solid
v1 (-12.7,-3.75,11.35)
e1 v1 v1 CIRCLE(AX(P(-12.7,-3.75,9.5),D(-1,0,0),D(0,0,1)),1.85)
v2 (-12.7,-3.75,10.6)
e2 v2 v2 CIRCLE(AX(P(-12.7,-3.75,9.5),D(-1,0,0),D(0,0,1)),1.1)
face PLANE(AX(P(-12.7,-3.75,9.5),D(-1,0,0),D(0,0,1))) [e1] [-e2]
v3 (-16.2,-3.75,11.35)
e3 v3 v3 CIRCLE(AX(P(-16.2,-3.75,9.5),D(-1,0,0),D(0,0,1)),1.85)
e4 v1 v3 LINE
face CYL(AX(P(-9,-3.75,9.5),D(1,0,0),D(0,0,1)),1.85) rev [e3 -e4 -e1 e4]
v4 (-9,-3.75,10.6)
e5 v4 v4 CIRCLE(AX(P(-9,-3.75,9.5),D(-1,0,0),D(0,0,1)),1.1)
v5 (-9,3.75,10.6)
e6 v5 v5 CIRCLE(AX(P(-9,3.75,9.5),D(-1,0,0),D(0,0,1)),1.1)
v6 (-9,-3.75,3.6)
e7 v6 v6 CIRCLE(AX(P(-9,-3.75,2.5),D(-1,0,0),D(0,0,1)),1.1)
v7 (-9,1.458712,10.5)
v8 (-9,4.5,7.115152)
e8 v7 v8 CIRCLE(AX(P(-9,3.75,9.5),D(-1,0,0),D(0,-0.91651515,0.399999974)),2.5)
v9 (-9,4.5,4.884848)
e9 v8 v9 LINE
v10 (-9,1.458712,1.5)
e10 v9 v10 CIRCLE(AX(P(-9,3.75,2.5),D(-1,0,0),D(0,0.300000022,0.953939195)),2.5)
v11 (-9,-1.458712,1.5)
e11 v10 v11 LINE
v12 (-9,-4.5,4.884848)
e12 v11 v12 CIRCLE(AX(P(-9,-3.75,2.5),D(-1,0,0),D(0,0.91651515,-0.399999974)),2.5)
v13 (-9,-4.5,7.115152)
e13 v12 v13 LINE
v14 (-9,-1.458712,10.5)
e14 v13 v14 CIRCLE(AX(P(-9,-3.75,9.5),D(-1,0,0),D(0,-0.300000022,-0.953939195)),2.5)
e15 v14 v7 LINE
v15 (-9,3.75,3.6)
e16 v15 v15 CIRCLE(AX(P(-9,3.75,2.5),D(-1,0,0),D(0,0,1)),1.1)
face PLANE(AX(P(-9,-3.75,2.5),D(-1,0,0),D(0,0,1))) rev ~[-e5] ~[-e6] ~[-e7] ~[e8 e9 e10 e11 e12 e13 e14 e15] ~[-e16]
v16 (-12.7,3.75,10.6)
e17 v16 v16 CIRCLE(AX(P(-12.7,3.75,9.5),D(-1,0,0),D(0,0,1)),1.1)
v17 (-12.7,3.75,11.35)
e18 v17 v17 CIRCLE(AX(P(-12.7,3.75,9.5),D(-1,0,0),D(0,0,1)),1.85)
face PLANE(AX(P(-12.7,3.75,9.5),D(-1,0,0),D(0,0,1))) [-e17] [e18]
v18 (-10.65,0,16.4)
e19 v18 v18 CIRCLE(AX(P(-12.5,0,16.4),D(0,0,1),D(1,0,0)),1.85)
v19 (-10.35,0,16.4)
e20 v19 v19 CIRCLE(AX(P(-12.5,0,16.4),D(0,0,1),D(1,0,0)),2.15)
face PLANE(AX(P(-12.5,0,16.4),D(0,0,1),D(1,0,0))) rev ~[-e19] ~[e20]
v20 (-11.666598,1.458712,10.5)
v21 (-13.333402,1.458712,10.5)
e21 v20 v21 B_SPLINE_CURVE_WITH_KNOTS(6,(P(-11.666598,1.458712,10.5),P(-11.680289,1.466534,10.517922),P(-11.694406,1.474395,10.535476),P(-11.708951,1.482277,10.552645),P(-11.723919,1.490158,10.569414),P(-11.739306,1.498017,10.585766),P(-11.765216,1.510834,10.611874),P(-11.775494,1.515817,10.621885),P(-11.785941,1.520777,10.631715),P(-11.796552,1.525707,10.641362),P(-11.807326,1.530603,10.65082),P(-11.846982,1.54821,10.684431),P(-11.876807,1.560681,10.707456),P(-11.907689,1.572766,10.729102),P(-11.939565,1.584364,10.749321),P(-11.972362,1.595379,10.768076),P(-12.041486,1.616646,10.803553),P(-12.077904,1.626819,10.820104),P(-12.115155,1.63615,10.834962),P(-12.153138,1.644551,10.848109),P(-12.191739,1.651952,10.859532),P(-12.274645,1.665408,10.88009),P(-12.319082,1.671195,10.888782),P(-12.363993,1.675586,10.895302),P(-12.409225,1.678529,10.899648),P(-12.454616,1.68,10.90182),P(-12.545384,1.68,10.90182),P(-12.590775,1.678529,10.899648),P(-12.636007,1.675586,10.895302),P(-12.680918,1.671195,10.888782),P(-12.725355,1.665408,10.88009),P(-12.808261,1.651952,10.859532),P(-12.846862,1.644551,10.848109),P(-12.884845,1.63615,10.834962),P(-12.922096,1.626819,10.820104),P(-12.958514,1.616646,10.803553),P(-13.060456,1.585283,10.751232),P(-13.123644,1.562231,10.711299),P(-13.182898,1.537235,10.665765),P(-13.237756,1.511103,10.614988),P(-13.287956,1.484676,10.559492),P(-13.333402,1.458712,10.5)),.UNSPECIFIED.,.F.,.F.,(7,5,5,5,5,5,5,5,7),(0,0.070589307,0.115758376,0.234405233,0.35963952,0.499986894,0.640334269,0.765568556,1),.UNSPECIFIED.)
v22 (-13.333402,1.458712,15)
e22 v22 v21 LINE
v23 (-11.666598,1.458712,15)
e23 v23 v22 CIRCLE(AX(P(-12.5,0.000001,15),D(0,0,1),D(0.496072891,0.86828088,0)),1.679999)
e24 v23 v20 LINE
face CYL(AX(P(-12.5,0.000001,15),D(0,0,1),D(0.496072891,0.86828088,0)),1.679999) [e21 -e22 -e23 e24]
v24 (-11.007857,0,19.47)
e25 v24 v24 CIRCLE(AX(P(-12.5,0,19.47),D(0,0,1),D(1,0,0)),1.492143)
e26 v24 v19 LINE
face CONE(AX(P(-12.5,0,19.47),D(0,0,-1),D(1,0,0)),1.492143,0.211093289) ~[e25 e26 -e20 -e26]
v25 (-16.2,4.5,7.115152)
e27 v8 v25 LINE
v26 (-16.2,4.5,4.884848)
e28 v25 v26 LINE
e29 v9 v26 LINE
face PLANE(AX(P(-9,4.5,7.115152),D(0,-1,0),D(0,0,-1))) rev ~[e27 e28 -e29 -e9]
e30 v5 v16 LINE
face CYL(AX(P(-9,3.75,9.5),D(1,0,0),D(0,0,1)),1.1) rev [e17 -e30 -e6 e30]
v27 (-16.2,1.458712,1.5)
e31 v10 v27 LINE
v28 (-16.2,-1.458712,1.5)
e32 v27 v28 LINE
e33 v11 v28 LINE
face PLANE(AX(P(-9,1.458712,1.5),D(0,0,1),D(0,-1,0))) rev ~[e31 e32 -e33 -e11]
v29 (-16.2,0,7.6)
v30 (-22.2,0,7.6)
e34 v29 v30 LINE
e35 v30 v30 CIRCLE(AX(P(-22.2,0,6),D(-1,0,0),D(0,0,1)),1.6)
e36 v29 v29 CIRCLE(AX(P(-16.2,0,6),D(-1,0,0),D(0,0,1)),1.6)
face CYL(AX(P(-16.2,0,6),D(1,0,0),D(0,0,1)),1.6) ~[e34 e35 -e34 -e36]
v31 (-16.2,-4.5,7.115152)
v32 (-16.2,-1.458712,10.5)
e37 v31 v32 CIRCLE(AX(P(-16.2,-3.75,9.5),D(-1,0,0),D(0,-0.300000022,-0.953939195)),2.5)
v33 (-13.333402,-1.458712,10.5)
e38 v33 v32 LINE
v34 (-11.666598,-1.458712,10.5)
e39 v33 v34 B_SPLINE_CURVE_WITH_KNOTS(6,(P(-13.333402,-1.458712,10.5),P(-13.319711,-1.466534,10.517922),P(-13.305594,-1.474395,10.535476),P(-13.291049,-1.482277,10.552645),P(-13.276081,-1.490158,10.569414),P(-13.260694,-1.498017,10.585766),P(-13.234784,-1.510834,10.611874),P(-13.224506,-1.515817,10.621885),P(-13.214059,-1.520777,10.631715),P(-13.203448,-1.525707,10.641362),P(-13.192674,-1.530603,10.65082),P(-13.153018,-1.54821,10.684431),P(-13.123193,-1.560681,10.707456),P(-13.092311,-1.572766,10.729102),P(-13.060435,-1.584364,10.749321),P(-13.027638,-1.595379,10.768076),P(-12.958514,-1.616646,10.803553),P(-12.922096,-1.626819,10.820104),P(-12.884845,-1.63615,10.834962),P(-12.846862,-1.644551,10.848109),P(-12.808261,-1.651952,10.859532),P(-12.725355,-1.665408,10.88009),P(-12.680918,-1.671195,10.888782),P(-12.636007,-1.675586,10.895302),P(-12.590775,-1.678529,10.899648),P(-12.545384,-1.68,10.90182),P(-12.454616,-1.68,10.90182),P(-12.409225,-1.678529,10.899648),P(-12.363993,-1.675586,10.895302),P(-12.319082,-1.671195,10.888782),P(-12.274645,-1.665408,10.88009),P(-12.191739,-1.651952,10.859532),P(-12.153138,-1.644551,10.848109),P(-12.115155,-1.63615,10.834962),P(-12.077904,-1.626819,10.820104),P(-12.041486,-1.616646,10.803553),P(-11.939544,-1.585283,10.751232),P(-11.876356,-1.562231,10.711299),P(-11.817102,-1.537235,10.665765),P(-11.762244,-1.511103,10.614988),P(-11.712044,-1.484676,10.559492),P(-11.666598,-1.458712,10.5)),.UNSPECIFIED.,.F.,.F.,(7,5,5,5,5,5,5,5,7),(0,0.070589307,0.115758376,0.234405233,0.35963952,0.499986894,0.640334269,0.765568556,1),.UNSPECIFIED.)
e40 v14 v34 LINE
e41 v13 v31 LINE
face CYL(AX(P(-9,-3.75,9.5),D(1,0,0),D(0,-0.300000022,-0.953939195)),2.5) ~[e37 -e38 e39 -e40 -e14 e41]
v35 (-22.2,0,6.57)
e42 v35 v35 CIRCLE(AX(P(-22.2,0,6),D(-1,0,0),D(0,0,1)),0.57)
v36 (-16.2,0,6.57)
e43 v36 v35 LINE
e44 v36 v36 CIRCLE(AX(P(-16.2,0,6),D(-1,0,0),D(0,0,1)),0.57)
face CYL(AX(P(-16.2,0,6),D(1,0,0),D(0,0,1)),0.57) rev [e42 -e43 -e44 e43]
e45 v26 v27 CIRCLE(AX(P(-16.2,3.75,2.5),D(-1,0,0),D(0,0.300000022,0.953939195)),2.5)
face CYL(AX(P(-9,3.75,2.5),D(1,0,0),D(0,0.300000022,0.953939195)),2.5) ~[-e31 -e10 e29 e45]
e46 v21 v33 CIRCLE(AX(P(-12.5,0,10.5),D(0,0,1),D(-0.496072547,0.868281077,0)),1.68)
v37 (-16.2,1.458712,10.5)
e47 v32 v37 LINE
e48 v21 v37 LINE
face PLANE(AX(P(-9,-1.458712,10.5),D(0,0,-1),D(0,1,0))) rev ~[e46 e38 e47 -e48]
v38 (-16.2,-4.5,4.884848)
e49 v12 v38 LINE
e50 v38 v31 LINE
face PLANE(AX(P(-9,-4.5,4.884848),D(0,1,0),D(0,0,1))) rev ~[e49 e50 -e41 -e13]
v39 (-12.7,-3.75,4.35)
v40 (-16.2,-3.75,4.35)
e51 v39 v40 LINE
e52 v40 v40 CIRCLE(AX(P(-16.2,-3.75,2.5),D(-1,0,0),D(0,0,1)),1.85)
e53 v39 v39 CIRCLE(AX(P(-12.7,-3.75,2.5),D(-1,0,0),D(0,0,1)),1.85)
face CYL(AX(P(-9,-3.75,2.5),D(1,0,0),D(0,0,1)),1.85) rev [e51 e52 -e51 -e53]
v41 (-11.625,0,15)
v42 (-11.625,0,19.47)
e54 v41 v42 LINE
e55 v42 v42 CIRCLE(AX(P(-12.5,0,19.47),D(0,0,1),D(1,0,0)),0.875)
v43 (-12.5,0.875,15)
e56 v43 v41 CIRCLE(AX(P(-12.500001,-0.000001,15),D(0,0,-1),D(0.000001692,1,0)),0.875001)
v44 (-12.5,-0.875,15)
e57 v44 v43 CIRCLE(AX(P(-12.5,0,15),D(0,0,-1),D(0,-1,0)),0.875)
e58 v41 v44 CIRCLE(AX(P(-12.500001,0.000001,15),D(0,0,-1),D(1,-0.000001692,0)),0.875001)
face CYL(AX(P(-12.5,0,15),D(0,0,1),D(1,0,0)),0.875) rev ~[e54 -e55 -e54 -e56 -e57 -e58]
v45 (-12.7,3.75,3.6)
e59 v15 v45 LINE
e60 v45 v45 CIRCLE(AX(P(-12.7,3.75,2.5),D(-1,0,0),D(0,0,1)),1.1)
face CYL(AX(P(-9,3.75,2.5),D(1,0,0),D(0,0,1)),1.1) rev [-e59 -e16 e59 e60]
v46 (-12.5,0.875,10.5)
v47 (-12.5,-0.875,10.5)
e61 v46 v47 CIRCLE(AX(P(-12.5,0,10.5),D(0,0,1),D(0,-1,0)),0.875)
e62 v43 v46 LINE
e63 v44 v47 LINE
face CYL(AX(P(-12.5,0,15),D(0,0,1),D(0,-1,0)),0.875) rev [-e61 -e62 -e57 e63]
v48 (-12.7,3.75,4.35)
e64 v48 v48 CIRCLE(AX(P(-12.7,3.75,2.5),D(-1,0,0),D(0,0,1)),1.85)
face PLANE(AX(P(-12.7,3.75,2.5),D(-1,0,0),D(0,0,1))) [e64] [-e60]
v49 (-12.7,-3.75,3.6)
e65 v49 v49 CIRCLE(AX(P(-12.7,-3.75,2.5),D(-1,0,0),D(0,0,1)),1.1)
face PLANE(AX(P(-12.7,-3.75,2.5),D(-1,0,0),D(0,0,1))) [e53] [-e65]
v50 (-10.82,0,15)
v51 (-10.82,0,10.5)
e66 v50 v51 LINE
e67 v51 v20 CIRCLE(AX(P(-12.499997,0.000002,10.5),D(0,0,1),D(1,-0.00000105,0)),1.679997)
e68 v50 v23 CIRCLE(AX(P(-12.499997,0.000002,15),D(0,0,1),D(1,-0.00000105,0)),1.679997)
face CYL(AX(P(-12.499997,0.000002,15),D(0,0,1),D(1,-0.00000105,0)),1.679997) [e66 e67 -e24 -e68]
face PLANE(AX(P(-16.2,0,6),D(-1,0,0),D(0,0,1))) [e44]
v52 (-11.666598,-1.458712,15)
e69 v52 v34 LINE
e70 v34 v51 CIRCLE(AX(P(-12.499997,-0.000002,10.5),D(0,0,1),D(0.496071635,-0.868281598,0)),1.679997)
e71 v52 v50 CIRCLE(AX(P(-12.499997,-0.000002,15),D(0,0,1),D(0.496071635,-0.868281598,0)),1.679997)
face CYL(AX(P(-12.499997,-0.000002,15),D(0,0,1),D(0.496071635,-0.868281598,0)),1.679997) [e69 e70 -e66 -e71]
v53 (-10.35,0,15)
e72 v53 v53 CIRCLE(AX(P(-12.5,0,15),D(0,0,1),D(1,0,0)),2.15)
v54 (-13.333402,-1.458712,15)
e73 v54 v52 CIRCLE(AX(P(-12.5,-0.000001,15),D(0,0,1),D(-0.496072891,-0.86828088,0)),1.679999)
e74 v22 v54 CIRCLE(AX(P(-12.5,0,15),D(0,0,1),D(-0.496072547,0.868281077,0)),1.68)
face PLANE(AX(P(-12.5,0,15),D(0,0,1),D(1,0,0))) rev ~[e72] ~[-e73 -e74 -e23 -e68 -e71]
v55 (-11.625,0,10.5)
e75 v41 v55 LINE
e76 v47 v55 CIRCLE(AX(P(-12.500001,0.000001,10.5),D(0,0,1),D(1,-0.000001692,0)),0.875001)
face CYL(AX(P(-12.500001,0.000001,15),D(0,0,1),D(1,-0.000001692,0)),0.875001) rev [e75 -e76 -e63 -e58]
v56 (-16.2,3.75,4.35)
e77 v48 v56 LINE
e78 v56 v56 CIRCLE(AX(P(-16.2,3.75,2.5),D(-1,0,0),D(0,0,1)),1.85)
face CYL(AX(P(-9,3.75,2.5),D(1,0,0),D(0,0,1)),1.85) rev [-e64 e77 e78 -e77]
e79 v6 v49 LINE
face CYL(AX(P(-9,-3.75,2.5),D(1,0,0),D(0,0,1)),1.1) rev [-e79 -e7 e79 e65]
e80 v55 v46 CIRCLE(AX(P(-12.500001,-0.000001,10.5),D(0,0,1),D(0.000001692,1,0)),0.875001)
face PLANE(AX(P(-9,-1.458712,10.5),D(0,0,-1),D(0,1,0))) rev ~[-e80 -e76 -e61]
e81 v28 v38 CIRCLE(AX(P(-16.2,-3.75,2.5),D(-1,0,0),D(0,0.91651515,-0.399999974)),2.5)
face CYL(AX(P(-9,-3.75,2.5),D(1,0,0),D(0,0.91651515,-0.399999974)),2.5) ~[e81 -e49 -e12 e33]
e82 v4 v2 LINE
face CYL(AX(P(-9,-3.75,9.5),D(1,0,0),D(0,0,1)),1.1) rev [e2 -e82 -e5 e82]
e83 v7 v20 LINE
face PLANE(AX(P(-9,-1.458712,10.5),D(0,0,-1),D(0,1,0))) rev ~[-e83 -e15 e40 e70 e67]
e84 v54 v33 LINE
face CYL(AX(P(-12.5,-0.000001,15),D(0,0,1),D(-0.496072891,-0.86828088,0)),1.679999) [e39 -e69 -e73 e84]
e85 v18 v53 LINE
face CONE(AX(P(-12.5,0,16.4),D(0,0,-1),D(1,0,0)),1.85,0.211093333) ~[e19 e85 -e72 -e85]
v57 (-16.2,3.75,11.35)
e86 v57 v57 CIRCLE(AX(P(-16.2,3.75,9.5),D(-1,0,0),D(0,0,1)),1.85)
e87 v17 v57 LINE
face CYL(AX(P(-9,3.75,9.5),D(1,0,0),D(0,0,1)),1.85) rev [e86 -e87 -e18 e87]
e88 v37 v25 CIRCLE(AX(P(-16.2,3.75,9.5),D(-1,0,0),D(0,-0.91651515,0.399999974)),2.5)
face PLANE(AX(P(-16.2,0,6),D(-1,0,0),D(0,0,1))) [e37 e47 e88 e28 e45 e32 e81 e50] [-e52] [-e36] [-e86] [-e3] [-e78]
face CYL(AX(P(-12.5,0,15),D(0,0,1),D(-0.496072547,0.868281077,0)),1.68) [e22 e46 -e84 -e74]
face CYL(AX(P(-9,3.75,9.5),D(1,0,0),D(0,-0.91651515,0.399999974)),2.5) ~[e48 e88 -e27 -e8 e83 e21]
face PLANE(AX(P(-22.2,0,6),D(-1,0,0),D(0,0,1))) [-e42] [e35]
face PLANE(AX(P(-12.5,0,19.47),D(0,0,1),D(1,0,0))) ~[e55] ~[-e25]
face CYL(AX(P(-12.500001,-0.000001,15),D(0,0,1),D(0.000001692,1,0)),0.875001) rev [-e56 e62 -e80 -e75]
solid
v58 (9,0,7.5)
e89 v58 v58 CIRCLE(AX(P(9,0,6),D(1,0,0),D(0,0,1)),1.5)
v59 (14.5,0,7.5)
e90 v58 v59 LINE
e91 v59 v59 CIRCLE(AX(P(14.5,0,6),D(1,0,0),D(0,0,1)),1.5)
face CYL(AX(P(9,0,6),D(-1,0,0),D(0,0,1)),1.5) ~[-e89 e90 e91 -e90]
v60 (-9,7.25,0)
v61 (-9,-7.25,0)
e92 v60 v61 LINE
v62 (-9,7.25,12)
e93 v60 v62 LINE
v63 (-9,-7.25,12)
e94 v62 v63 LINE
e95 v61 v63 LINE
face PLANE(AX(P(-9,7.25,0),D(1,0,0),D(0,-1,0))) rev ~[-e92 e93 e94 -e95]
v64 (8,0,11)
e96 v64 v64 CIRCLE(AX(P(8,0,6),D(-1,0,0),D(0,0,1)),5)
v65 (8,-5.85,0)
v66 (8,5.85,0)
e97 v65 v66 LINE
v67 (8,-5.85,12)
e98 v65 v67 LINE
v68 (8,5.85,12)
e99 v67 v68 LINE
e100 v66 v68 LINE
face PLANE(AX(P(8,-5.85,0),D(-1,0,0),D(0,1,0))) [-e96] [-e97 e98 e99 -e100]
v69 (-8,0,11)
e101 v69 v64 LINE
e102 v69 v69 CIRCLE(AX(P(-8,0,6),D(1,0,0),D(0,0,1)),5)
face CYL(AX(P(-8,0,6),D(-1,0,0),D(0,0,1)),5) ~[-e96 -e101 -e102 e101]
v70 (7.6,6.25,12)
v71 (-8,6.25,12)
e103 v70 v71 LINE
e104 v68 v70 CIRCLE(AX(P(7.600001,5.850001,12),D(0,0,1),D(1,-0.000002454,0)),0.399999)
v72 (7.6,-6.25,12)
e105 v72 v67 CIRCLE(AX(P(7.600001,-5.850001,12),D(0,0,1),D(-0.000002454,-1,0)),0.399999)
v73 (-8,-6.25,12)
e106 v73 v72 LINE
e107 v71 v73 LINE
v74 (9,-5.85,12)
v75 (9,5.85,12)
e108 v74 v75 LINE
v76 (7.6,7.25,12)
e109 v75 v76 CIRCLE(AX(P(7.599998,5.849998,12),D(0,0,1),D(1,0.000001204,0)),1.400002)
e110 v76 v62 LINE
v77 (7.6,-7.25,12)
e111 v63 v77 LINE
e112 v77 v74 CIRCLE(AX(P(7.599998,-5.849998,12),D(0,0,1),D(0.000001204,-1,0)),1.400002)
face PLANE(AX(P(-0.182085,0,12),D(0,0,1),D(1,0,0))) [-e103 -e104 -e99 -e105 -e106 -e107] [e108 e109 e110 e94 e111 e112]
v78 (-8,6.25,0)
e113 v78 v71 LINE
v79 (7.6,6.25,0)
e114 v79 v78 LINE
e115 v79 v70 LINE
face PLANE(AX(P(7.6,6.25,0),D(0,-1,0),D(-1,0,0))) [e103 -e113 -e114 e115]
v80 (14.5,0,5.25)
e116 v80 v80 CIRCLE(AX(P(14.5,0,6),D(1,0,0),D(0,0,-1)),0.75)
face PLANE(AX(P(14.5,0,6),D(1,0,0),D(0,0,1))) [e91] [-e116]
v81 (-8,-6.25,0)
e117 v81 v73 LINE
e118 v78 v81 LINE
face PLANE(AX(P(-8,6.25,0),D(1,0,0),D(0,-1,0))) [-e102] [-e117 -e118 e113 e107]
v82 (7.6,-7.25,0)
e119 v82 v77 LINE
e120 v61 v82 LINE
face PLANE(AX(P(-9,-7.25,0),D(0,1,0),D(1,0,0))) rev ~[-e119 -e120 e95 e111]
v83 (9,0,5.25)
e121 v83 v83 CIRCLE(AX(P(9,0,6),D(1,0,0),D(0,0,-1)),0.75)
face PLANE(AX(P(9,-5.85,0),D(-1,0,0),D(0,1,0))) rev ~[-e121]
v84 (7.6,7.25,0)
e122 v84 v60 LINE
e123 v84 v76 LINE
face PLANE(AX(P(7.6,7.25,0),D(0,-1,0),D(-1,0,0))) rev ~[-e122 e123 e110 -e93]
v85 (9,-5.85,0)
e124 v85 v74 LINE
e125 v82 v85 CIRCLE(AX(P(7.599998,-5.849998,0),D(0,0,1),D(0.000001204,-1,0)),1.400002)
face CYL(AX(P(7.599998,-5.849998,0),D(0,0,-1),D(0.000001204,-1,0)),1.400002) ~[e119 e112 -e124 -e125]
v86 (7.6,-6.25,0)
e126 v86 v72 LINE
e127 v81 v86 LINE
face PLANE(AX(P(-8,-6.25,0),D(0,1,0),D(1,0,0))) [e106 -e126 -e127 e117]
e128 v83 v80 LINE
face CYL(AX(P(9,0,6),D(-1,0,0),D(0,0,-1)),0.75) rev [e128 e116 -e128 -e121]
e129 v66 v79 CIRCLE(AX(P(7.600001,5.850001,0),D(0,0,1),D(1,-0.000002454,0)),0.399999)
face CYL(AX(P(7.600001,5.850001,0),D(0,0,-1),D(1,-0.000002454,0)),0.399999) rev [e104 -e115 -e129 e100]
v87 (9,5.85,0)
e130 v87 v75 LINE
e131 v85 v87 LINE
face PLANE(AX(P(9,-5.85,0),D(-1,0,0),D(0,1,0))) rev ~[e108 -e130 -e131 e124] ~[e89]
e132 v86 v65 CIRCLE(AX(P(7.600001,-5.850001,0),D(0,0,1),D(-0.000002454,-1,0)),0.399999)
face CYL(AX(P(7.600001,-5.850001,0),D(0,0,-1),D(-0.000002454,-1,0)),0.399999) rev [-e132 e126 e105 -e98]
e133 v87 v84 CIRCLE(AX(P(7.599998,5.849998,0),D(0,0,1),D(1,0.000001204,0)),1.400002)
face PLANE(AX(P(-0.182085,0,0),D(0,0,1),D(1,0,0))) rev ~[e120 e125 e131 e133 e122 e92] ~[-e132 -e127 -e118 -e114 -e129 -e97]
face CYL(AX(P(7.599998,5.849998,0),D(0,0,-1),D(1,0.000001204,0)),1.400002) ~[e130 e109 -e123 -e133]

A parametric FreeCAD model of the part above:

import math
import FreeCAD as App
import Part
import Sketcher
from FreeCAD import Vector


def add_polygon(sketch, points):
    """Adds a closed chain of lines whose ends are joined by coincident constraints."""
    first, n = sketch.GeometryCount, len(points)
    for a, b in zip(points, points[1:] + points[:1]):
        sketch.addGeometry(Part.LineSegment(App.Vector(*a, 0), App.Vector(*b, 0)), False)
    for i in range(n):
        sketch.addConstraint(Sketcher.Constraint("Coincident", first + i, 2, first + (i + 1) % n, 1))

doc = App.newDocument("Part")
body = doc.addObject("PartDesign::Body", "Body")

# Sketch on XY plane
sketch1 = body.newObject("Sketcher::SketchObject", "Sketch")
sketch1.AttachmentSupport = (doc.getObject("XY_Plane"), [""])
sketch1.MapMode = "FlatFace"
sketch1.addGeometry(Part.LineSegment(Vector(9, -5.85, 0), Vector(9, 5.85, 0)), False)
sketch1.addGeometry(Part.ArcOfCircle(Part.Circle(Vector(7.599998, 5.849998, 0), Vector(0, 0, 1), 1.400002), math.radians(0.000069), math.radians(89.999931)), False)
sketch1.addGeometry(Part.LineSegment(Vector(7.6, 7.25, 0), Vector(-9, 7.25, 0)), False)
sketch1.addGeometry(Part.LineSegment(Vector(-9, 7.25, 0), Vector(-9, -7.25, 0)), False)
sketch1.addGeometry(Part.LineSegment(Vector(-9, -7.25, 0), Vector(7.6, -7.25, 0)), False)
sketch1.addGeometry(Part.ArcOfCircle(Part.Circle(Vector(7.599998, -5.849998, 0), Vector(0, 0, 1), 1.400002), math.radians(-89.999931), math.radians(-0.000069)), False)
sketch1.addGeometry(Part.LineSegment(Vector(7.6, -6.25, 0), Vector(-8, -6.25, 0)), False)
sketch1.addGeometry(Part.LineSegment(Vector(-8, -6.25, 0), Vector(-8, 6.25, 0)), False)
sketch1.addGeometry(Part.LineSegment(Vector(-8, 6.25, 0), Vector(7.6, 6.25, 0)), False)
sketch1.addGeometry(Part.ArcOfCircle(Part.Circle(Vector(7.600001, 5.850001, 0), Vector(0, 0, 1), 0.399999), math.radians(-0.000141), math.radians(90.000141)), False)
sketch1.addGeometry(Part.LineSegment(Vector(8, 5.85, 0), Vector(8, -5.85, 0)), False)
sketch1.addGeometry(Part.ArcOfCircle(Part.Circle(Vector(7.600001, -5.850001, 0), Vector(0, 0, 1), 0.399999), math.radians(-90.000141), math.radians(0.000141)), False)
sketch1.addConstraint(Sketcher.Constraint("Tangent", 0, 2, 1, 1))
sketch1.addConstraint(Sketcher.Constraint("Tangent", 1, 2, 2, 1))
sketch1.addConstraint(Sketcher.Constraint("Coincident", 2, 2, 3, 1))
sketch1.addConstraint(Sketcher.Constraint("Coincident", 3, 2, 4, 1))
sketch1.addConstraint(Sketcher.Constraint("Tangent", 4, 2, 5, 1))
sketch1.addConstraint(Sketcher.Constraint("Tangent", 5, 2, 0, 1))
sketch1.addConstraint(Sketcher.Constraint("Coincident", 6, 2, 7, 1))
sketch1.addConstraint(Sketcher.Constraint("Coincident", 7, 2, 8, 1))
sketch1.addConstraint(Sketcher.Constraint("Coincident", 8, 2, 9, 2))
sketch1.addConstraint(Sketcher.Constraint("Coincident", 9, 1, 10, 1))
sketch1.addConstraint(Sketcher.Constraint("Coincident", 10, 2, 11, 2))
sketch1.addConstraint(Sketcher.Constraint("Coincident", 11, 1, 6, 1))
sketch1.addConstraint(Sketcher.Constraint("Vertical", 0))
sketch1.addConstraint(Sketcher.Constraint("Horizontal", 2))
sketch1.addConstraint(Sketcher.Constraint("Vertical", 3))
sketch1.addConstraint(Sketcher.Constraint("Horizontal", 4))
sketch1.addConstraint(Sketcher.Constraint("Horizontal", 6))
sketch1.addConstraint(Sketcher.Constraint("Vertical", 7))
sketch1.addConstraint(Sketcher.Constraint("Horizontal", 8))
sketch1.addConstraint(Sketcher.Constraint("Vertical", 10))
sketch1.addConstraint(Sketcher.Constraint("Coincident", 9, 3, 1, 3))
sketch1.addConstraint(Sketcher.Constraint("Coincident", 11, 3, 5, 3))
sketch1.addConstraint(Sketcher.Constraint("Equal", 1, 5))
sketch1.addConstraint(Sketcher.Constraint("Symmetric", 8, 2, 11, 1, -1))
sketch1.addConstraint(Sketcher.Constraint("Horizontal", 0, 2, 9, 1))
sketch1.addConstraint(Sketcher.Constraint("Horizontal", 5, 2, 10, 2))
sketch1.addConstraint(Sketcher.Constraint("Vertical", 4, 2, 8, 2))
sketch1.addConstraint(Sketcher.Constraint("Radius", 1, 1.400002))
sketch1.addConstraint(Sketcher.Constraint("Radius", 9, 0.399999))
sketch1.addConstraint(Sketcher.Constraint("DistanceX", 2, 2, 2, 1, 16.6))
sketch1.addConstraint(Sketcher.Constraint("DistanceX", 6, 2, 6, 1, 15.6))
sketch1.addConstraint(Sketcher.Constraint("DistanceY", 0, 1, 0, 2, 11.7))
sketch1.addConstraint(Sketcher.Constraint("DistanceX", -1, 1, 0, 2, 9.0))
pad1 = body.newObject("PartDesign::Pad", "Pad")
pad1.Profile = sketch1
pad1.Length = 12

# Sketch on YZ plane
sketch2 = body.newObject("Sketcher::SketchObject", "Sketch001")
sketch2.AttachmentSupport = (doc.getObject("YZ_Plane"), [""])
sketch2.MapMode = "FlatFace"
sketch2.AttachmentOffset = App.Placement(Vector(0, 0, 9), App.Rotation())
sketch2.addGeometry(Part.Circle(Vector(0, 6, 0), Vector(0, 0, 1), 1.5), False)
sketch2.addGeometry(Part.Circle(Vector(0, 6, 0), Vector(0, 0, 1), 0.75), False)
sketch2.addConstraint(Sketcher.Constraint("Coincident", 1, 3, 0, 3))
sketch2.addConstraint(Sketcher.Constraint("PointOnObject", 0, 3, -2))
sketch2.addConstraint(Sketcher.Constraint("Diameter", 0, 3.0))
sketch2.addConstraint(Sketcher.Constraint("Diameter", 1, 1.5))
sketch2.addConstraint(Sketcher.Constraint("DistanceY", -1, 1, 0, 3, 6.0))
pad2 = body.newObject("PartDesign::Pad", "Pad001")
pad2.Profile = sketch2
pad2.Length = 5.5

# Sketch on YZ plane
sketch3 = body.newObject("Sketcher::SketchObject", "Sketch002")
sketch3.AttachmentSupport = (doc.getObject("YZ_Plane"), [""])
sketch3.MapMode = "FlatFace"
sketch3.AttachmentOffset = App.Placement(Vector(0, 0, -8), App.Rotation())
sketch3.addGeometry(Part.Circle(Vector(0, 6, 0), Vector(0, 0, 1), 5), False)
sketch3.addConstraint(Sketcher.Constraint("PointOnObject", 0, 3, -2))
sketch3.addConstraint(Sketcher.Constraint("Diameter", 0, 10.0))
sketch3.addConstraint(Sketcher.Constraint("DistanceY", -1, 1, 0, 3, 6.0))
pad3 = body.newObject("PartDesign::Pad", "Pad002")
pad3.Profile = sketch3
pad3.Type = "UpToFirst"
body2 = doc.addObject("PartDesign::Body", "Body001")

# Sketch on YZ plane
sketch4 = body2.newObject("Sketcher::SketchObject", "Sketch003")
sketch4.AttachmentSupport = (doc.getObject("YZ_Plane001"), [""])
sketch4.MapMode = "FlatFace"
sketch4.AttachmentOffset = App.Placement(Vector(0, 0, -9), App.Rotation())
sketch4.addGeometry(Part.ArcOfCircle(Part.Circle(Vector(-3.75, 2.5, 0), Vector(0, 0, 1), 2.5), math.radians(107.457604), math.radians(336.421823)), False)
sketch4.addGeometry(Part.LineSegment(Vector(-4.5, 4.884848, 0), Vector(-4.5, 7.115152, 0)), False)
sketch4.addGeometry(Part.ArcOfCircle(Part.Circle(Vector(-3.75, 9.5, 0), Vector(0, 0, 1), 2.5), math.radians(23.578177), math.radians(252.542396)), False)
sketch4.addGeometry(Part.LineSegment(Vector(-1.458712, 10.5, 0), Vector(1.458712, 10.5, 0)), False)
sketch4.addGeometry(Part.ArcOfCircle(Part.Circle(Vector(3.75, 9.5, 0), Vector(0, 0, 1), 2.5), math.radians(-72.542396), math.radians(156.421823)), False)
sketch4.addGeometry(Part.LineSegment(Vector(4.5, 7.115152, 0), Vector(4.5, 4.884848, 0)), False)
sketch4.addGeometry(Part.ArcOfCircle(Part.Circle(Vector(3.75, 2.5, 0), Vector(0, 0, 1), 2.5), math.radians(-156.421823), math.radians(72.542396)), False)
sketch4.addGeometry(Part.LineSegment(Vector(1.458712, 1.5, 0), Vector(-1.458712, 1.5, 0)), False)
sketch4.addGeometry(Part.Circle(Vector(-3.75, 2.5, 0), Vector(0, 0, 1), 1.85), False)
sketch4.addGeometry(Part.Circle(Vector(-3.75, 9.5, 0), Vector(0, 0, 1), 1.85), False)
sketch4.addGeometry(Part.Circle(Vector(3.75, 2.5, 0), Vector(0, 0, 1), 1.85), False)
sketch4.addGeometry(Part.Circle(Vector(3.75, 9.5, 0), Vector(0, 0, 1), 1.85), False)
sketch4.addConstraint(Sketcher.Constraint("Coincident", 0, 1, 1, 1))
sketch4.addConstraint(Sketcher.Constraint("Coincident", 1, 2, 2, 2))
sketch4.addConstraint(Sketcher.Constraint("Coincident", 2, 1, 3, 1))
sketch4.addConstraint(Sketcher.Constraint("Coincident", 3, 2, 4, 2))
sketch4.addConstraint(Sketcher.Constraint("Coincident", 4, 1, 5, 1))
sketch4.addConstraint(Sketcher.Constraint("Coincident", 5, 2, 6, 2))
sketch4.addConstraint(Sketcher.Constraint("Coincident", 6, 1, 7, 1))
sketch4.addConstraint(Sketcher.Constraint("Coincident", 7, 2, 0, 2))
sketch4.addConstraint(Sketcher.Constraint("Vertical", 1))
sketch4.addConstraint(Sketcher.Constraint("Horizontal", 3))
sketch4.addConstraint(Sketcher.Constraint("Vertical", 5))
sketch4.addConstraint(Sketcher.Constraint("Horizontal", 7))
sketch4.addConstraint(Sketcher.Constraint("Coincident", 8, 3, 0, 3))
sketch4.addConstraint(Sketcher.Constraint("Coincident", 9, 3, 2, 3))
sketch4.addConstraint(Sketcher.Constraint("Coincident", 10, 3, 6, 3))
sketch4.addConstraint(Sketcher.Constraint("Coincident", 11, 3, 4, 3))
sketch4.addConstraint(Sketcher.Constraint("Equal", 0, 2))
sketch4.addConstraint(Sketcher.Constraint("Equal", 2, 4))
sketch4.addConstraint(Sketcher.Constraint("Equal", 4, 6))
sketch4.addConstraint(Sketcher.Constraint("Equal", 8, 9))
sketch4.addConstraint(Sketcher.Constraint("Equal", 9, 10))
sketch4.addConstraint(Sketcher.Constraint("Equal", 10, 11))
sketch4.addConstraint(Sketcher.Constraint("Symmetric", 2, 3, 4, 3, -2))
sketch4.addConstraint(Sketcher.Constraint("Symmetric", 0, 3, 6, 3, -2))
sketch4.addConstraint(Sketcher.Constraint("Horizontal", 1, 2, 4, 1))
sketch4.addConstraint(Sketcher.Constraint("Vertical", 0, 3, 2, 3))
sketch4.addConstraint(Sketcher.Constraint("Vertical", 3, 2, 6, 1))
sketch4.addConstraint(Sketcher.Constraint("Diameter", 8, 3.7))
sketch4.addConstraint(Sketcher.Constraint("Radius", 0, 2.5))
sketch4.addConstraint(Sketcher.Constraint("DistanceY", 0, 3, 2, 3, 7.0))
sketch4.addConstraint(Sketcher.Constraint("DistanceY", 2, 3, 2, 1, 1.0))
sketch4.addConstraint(Sketcher.Constraint("DistanceY", -1, 1, 0, 3, 2.5))
sketch4.addConstraint(Sketcher.Constraint("DistanceX", 0, 1, -1, 1, 4.5))
sketch4.addConstraint(Sketcher.Constraint("DistanceX", 2, 3, 4, 3, 7.5))
pad4 = body2.newObject("PartDesign::Pad", "Pad003")
pad4.Profile = sketch4
pad4.Length = 7.2
pad4.Reversed = True
body3 = doc.addObject("PartDesign::Body", "Body002")

# Sketch on YZ plane
sketch5 = body3.newObject("Sketcher::SketchObject", "Sketch004")
sketch5.AttachmentSupport = (doc.getObject("YZ_Plane002"), [""])
sketch5.MapMode = "FlatFace"
sketch5.AttachmentOffset = App.Placement(Vector(0, 0, -9), App.Rotation())
sketch5.addGeometry(Part.Circle(Vector(3.75, 2.5, 0), Vector(0, 0, 1), 1.85), False)
sketch5.addGeometry(Part.Circle(Vector(3.75, 2.5, 0), Vector(0, 0, 1), 1.1), False)
sketch5.addConstraint(Sketcher.Constraint("Coincident", 1, 3, 0, 3))
sketch5.addConstraint(Sketcher.Constraint("Diameter", 0, 3.7))
sketch5.addConstraint(Sketcher.Constraint("Diameter", 1, 2.2))
sketch5.addConstraint(Sketcher.Constraint("DistanceY", -1, 1, 0, 3, 2.5))
sketch5.addConstraint(Sketcher.Constraint("DistanceX", -1, 1, 0, 3, 3.75))
pad5 = body3.newObject("PartDesign::Pad", "Pad004")
pad5.Profile = sketch5
pad5.Length = 3.7
pad5.Reversed = True
body4 = doc.addObject("PartDesign::Body", "Body003")

# Sketch on YZ plane
sketch6 = body4.newObject("Sketcher::SketchObject", "Sketch005")
sketch6.AttachmentSupport = (doc.getObject("YZ_Plane003"), [""])
sketch6.MapMode = "FlatFace"
sketch6.AttachmentOffset = App.Placement(Vector(0, 0, -9), App.Rotation())
sketch6.addGeometry(Part.Circle(Vector(3.75, 9.5, 0), Vector(0, 0, 1), 1.85), False)
sketch6.addGeometry(Part.Circle(Vector(3.75, 9.5, 0), Vector(0, 0, 1), 1.1), False)
sketch6.addConstraint(Sketcher.Constraint("Coincident", 1, 3, 0, 3))
sketch6.addConstraint(Sketcher.Constraint("Diameter", 0, 3.7))
sketch6.addConstraint(Sketcher.Constraint("Diameter", 1, 2.2))
sketch6.addConstraint(Sketcher.Constraint("DistanceY", -1, 1, 0, 3, 9.5))
sketch6.addConstraint(Sketcher.Constraint("DistanceX", -1, 1, 0, 3, 3.75))
pad6 = body4.newObject("PartDesign::Pad", "Pad005")
pad6.Profile = sketch6
pad6.Length = 3.7
pad6.Reversed = True
body5 = doc.addObject("PartDesign::Body", "Body004")

# Sketch on YZ plane
sketch7 = body5.newObject("Sketcher::SketchObject", "Sketch006")
sketch7.AttachmentSupport = (doc.getObject("YZ_Plane004"), [""])
sketch7.MapMode = "FlatFace"
sketch7.AttachmentOffset = App.Placement(Vector(0, 0, -9), App.Rotation())
sketch7.addGeometry(Part.Circle(Vector(-3.75, 9.5, 0), Vector(0, 0, 1), 1.85), False)
sketch7.addGeometry(Part.Circle(Vector(-3.75, 9.5, 0), Vector(0, 0, 1), 1.1), False)
sketch7.addConstraint(Sketcher.Constraint("Coincident", 1, 3, 0, 3))
sketch7.addConstraint(Sketcher.Constraint("Diameter", 0, 3.7))
sketch7.addConstraint(Sketcher.Constraint("Diameter", 1, 2.2))
sketch7.addConstraint(Sketcher.Constraint("DistanceY", -1, 1, 0, 3, 9.5))
sketch7.addConstraint(Sketcher.Constraint("DistanceX", 0, 3, -1, 1, 3.75))
pad7 = body5.newObject("PartDesign::Pad", "Pad006")
pad7.Profile = sketch7
pad7.Length = 3.7
pad7.Reversed = True
body6 = doc.addObject("PartDesign::Body", "Body005")

# Sketch on YZ plane
sketch8 = body6.newObject("Sketcher::SketchObject", "Sketch007")
sketch8.AttachmentSupport = (doc.getObject("YZ_Plane005"), [""])
sketch8.MapMode = "FlatFace"
sketch8.AttachmentOffset = App.Placement(Vector(0, 0, -9), App.Rotation())
sketch8.addGeometry(Part.Circle(Vector(-3.75, 2.5, 0), Vector(0, 0, 1), 1.85), False)
sketch8.addGeometry(Part.Circle(Vector(-3.75, 2.5, 0), Vector(0, 0, 1), 1.1), False)
sketch8.addConstraint(Sketcher.Constraint("Coincident", 1, 3, 0, 3))
sketch8.addConstraint(Sketcher.Constraint("Diameter", 0, 3.7))
sketch8.addConstraint(Sketcher.Constraint("Diameter", 1, 2.2))
sketch8.addConstraint(Sketcher.Constraint("DistanceY", -1, 1, 0, 3, 2.5))
sketch8.addConstraint(Sketcher.Constraint("DistanceX", 0, 3, -1, 1, 3.75))
pad8 = body6.newObject("PartDesign::Pad", "Pad007")
pad8.Profile = sketch8
pad8.Length = 3.7
pad8.Reversed = True
doc.recompute()

boolean = body2.newObject("PartDesign::Boolean", "Boolean")
boolean.Type = "Fuse"
boolean.addObjects([body3])
doc.recompute()

boolean2 = body2.newObject("PartDesign::Boolean", "Boolean001")
boolean2.Type = "Fuse"
boolean2.addObjects([body4])
doc.recompute()

boolean3 = body2.newObject("PartDesign::Boolean", "Boolean002")
boolean3.Type = "Fuse"
boolean3.addObjects([body5])
doc.recompute()

boolean4 = body2.newObject("PartDesign::Boolean", "Boolean003")
boolean4.Type = "Fuse"
boolean4.addObjects([body6])

# Sketch on YZ plane
sketch9 = body2.newObject("Sketcher::SketchObject", "Sketch008")
sketch9.AttachmentSupport = (doc.getObject("YZ_Plane001"), [""])
sketch9.MapMode = "FlatFace"
sketch9.AttachmentOffset = App.Placement(Vector(0, 0, -16.2), App.Rotation())
sketch9.addGeometry(Part.Circle(Vector(0, 6, 0), Vector(0, 0, 1), 1.6), False)
sketch9.addGeometry(Part.Circle(Vector(0, 6, 0), Vector(0, 0, 1), 0.57), False)
sketch9.addConstraint(Sketcher.Constraint("Coincident", 1, 3, 0, 3))
sketch9.addConstraint(Sketcher.Constraint("PointOnObject", 0, 3, -2))
sketch9.addConstraint(Sketcher.Constraint("Diameter", 0, 3.2))
sketch9.addConstraint(Sketcher.Constraint("Diameter", 1, 1.14))
sketch9.addConstraint(Sketcher.Constraint("DistanceY", -1, 1, 0, 3, 6.0))
pad9 = body2.newObject("PartDesign::Pad", "Pad008")
pad9.Profile = sketch9
pad9.Length = 6
pad9.Reversed = True

# Sketch on XY plane
sketch10 = body2.newObject("Sketcher::SketchObject", "Sketch009")
sketch10.AttachmentSupport = (doc.getObject("XY_Plane001"), [""])
sketch10.MapMode = "FlatFace"
sketch10.AttachmentOffset = App.Placement(Vector(0, 0, 15), App.Rotation())
sketch10.addGeometry(Part.ArcOfCircle(Part.Circle(Vector(-12.5, 0, 0), Vector(0, 0, 1), 1.68), math.radians(119.7405), math.radians(240.2595)), False)
sketch10.addGeometry(Part.LineSegment(Vector(-13.333402, -1.458712, 0), Vector(-12.5, -1.458712, 0)), False)
sketch10.addGeometry(Part.LineSegment(Vector(-12.5, -1.458712, 0), Vector(-12.5, -0.875, 0)), False)
sketch10.addGeometry(Part.ArcOfCircle(Part.Circle(Vector(-12.5, 0, 0), Vector(0, 0, 1), 0.875), math.radians(90), math.radians(270)), False)
sketch10.addGeometry(Part.LineSegment(Vector(-12.5, 0.875, 0), Vector(-12.5, 1.458712, 0)), False)
sketch10.addGeometry(Part.LineSegment(Vector(-12.5, 1.458712, 0), Vector(-13.333402, 1.458712, 0)), False)
sketch10.addConstraint(Sketcher.Constraint("Coincident", 0, 2, 1, 1))
sketch10.addConstraint(Sketcher.Constraint("Coincident", 1, 2, 2, 1))
sketch10.addConstraint(Sketcher.Constraint("Coincident", 2, 2, 3, 2))
sketch10.addConstraint(Sketcher.Constraint("Coincident", 3, 1, 4, 1))
sketch10.addConstraint(Sketcher.Constraint("Coincident", 4, 2, 5, 1))
sketch10.addConstraint(Sketcher.Constraint("Coincident", 5, 2, 0, 1))
sketch10.addConstraint(Sketcher.Constraint("Horizontal", 1))
sketch10.addConstraint(Sketcher.Constraint("Vertical", 2))
sketch10.addConstraint(Sketcher.Constraint("Vertical", 4))
sketch10.addConstraint(Sketcher.Constraint("Horizontal", 5))
sketch10.addConstraint(Sketcher.Constraint("Coincident", 3, 3, 0, 3))
sketch10.addConstraint(Sketcher.Constraint("Symmetric", 2, 2, 3, 1, -1))
sketch10.addConstraint(Sketcher.Constraint("Vertical", 3, 3, 1, 2))
sketch10.addConstraint(Sketcher.Constraint("Vertical", 0, 2, 5, 2))
sketch10.addConstraint(Sketcher.Constraint("Radius", 0, 1.68))
sketch10.addConstraint(Sketcher.Constraint("Radius", 3, 0.875))
sketch10.addConstraint(Sketcher.Constraint("DistanceX", 0, 3, -1, 1, 12.5))
sketch10.addConstraint(Sketcher.Constraint("DistanceX", 1, 1, 1, 2, 0.833402))
pad10 = body2.newObject("PartDesign::Pad", "Pad009")
pad10.Profile = sketch10
pad10.Type = "UpToFirst"
pad10.Reversed = True

# Sketch on XY plane
sketch11 = body2.newObject("Sketcher::SketchObject", "Sketch010")
sketch11.AttachmentSupport = (doc.getObject("XY_Plane001"), [""])
sketch11.MapMode = "FlatFace"
sketch11.AttachmentOffset = App.Placement(Vector(0, 0, 15), App.Rotation())
sketch11.addGeometry(Part.LineSegment(Vector(-12.5, -0.875, 0), Vector(-12.5, -1.458712, 0)), False)
sketch11.addGeometry(Part.LineSegment(Vector(-12.5, -1.458712, 0), Vector(-11.666598, -1.458712, 0)), False)
sketch11.addGeometry(Part.ArcOfCircle(Part.Circle(Vector(-12.499997, -0.000002, 0), Vector(0, 0, 1), 1.679997), math.radians(-60.25956), math.radians(0.00006)), False)
sketch11.addGeometry(Part.ArcOfCircle(Part.Circle(Vector(-12.499997, 0.000002, 0), Vector(0, 0, 1), 1.679997), math.radians(-0.00006), math.radians(60.25956)), False)
sketch11.addGeometry(Part.LineSegment(Vector(-11.666598, 1.458712, 0), Vector(-12.5, 1.458712, 0)), False)
sketch11.addGeometry(Part.LineSegment(Vector(-12.5, 1.458712, 0), Vector(-12.5, 0.875, 0)), False)
sketch11.addGeometry(Part.ArcOfCircle(Part.Circle(Vector(-12.500001, -0.000001, 0), Vector(0, 0, 1), 0.875001), math.radians(0.000097), math.radians(89.999903)), False)
sketch11.addGeometry(Part.ArcOfCircle(Part.Circle(Vector(-12.500001, 0.000001, 0), Vector(0, 0, 1), 0.875001), math.radians(-89.999903), math.radians(-0.000097)), False)
sketch11.addConstraint(Sketcher.Constraint("Coincident", 0, 2, 1, 1))
sketch11.addConstraint(Sketcher.Constraint("Coincident", 1, 2, 2, 1))
sketch11.addConstraint(Sketcher.Constraint("Coincident", 2, 2, 3, 1))
sketch11.addConstraint(Sketcher.Constraint("Coincident", 3, 2, 4, 1))
sketch11.addConstraint(Sketcher.Constraint("Coincident", 4, 2, 5, 1))
sketch11.addConstraint(Sketcher.Constraint("Coincident", 5, 2, 6, 2))
sketch11.addConstraint(Sketcher.Constraint("Coincident", 6, 1, 7, 2))
sketch11.addConstraint(Sketcher.Constraint("Coincident", 7, 1, 0, 1))
sketch11.addConstraint(Sketcher.Constraint("Vertical", 0))
sketch11.addConstraint(Sketcher.Constraint("Horizontal", 1))
sketch11.addConstraint(Sketcher.Constraint("Horizontal", 4))
sketch11.addConstraint(Sketcher.Constraint("Vertical", 5))
sketch11.addConstraint(Sketcher.Constraint("Coincident", 3, 3, 2, 3))
sketch11.addConstraint(Sketcher.Constraint("Coincident", 6, 3, 2, 3))
sketch11.addConstraint(Sketcher.Constraint("Coincident", 7, 3, 2, 3))
sketch11.addConstraint(Sketcher.Constraint("Symmetric", 1, 2, 3, 2, -1))
sketch11.addConstraint(Sketcher.Constraint("PointOnObject", 2, 2, -1))
sketch11.addConstraint(Sketcher.Constraint("PointOnObject", 6, 1, -1))
sketch11.addConstraint(Sketcher.Constraint("Vertical", 7, 3, 0, 2))
sketch11.addConstraint(Sketcher.Constraint("Vertical", 0, 2, 4, 2))
sketch11.addConstraint(Sketcher.Constraint("Radius", 6, 0.875001))
sketch11.addConstraint(Sketcher.Constraint("DistanceX", 6, 3, -1, 1, 12.500001))
sketch11.addConstraint(Sketcher.Constraint("DistanceX", 2, 2, -1, 1, 10.82))
sketch11.addConstraint(Sketcher.Constraint("DistanceX", 1, 1, 1, 2, 0.833402))
pad11 = body2.newObject("PartDesign::Pad", "Pad010")
pad11.Profile = sketch11
pad11.Type = "UpToFirst"
pad11.Reversed = True

# Sketch on XY plane
sketch12 = body2.newObject("Sketcher::SketchObject", "Sketch011")
sketch12.AttachmentSupport = (doc.getObject("XY_Plane001"), [""])
sketch12.MapMode = "FlatFace"
sketch12.AttachmentOffset = App.Placement(Vector(0, 0, 15), App.Rotation())
sketch12.addGeometry(Part.ArcOfCircle(Part.Circle(Vector(-12.5, 0, 0), Vector(0, 0, 1), 1.68), math.radians(119.7405), math.radians(240.2595)), False)
sketch12.addGeometry(Part.LineSegment(Vector(-13.333402, -1.458712, 0), Vector(-12.5, -1.458712, 0)), False)
sketch12.addGeometry(Part.LineSegment(Vector(-12.5, -1.458712, 0), Vector(-12.5, -0.875, 0)), False)
sketch12.addGeometry(Part.ArcOfCircle(Part.Circle(Vector(-12.5, 0, 0), Vector(0, 0, 1), 0.875), math.radians(90), math.radians(270)), False)
sketch12.addGeometry(Part.LineSegment(Vector(-12.5, 0.875, 0), Vector(-12.5, 1.458712, 0)), False)
sketch12.addGeometry(Part.LineSegment(Vector(-12.5, 1.458712, 0), Vector(-13.333402, 1.458712, 0)), False)
sketch12.addConstraint(Sketcher.Constraint("Coincident", 0, 2, 1, 1))
sketch12.addConstraint(Sketcher.Constraint("Coincident", 1, 2, 2, 1))
sketch12.addConstraint(Sketcher.Constraint("Coincident", 2, 2, 3, 2))
sketch12.addConstraint(Sketcher.Constraint("Coincident", 3, 1, 4, 1))
sketch12.addConstraint(Sketcher.Constraint("Coincident", 4, 2, 5, 1))
sketch12.addConstraint(Sketcher.Constraint("Coincident", 5, 2, 0, 1))
sketch12.addConstraint(Sketcher.Constraint("Horizontal", 1))
sketch12.addConstraint(Sketcher.Constraint("Vertical", 2))
sketch12.addConstraint(Sketcher.Constraint("Vertical", 4))
sketch12.addConstraint(Sketcher.Constraint("Horizontal", 5))
sketch12.addConstraint(Sketcher.Constraint("Coincident", 3, 3, 0, 3))
sketch12.addConstraint(Sketcher.Constraint("Symmetric", 2, 2, 3, 1, -1))
sketch12.addConstraint(Sketcher.Constraint("Vertical", 3, 3, 1, 2))
sketch12.addConstraint(Sketcher.Constraint("Vertical", 0, 2, 5, 2))
sketch12.addConstraint(Sketcher.Constraint("Radius", 0, 1.68))
sketch12.addConstraint(Sketcher.Constraint("Radius", 3, 0.875))
sketch12.addConstraint(Sketcher.Constraint("DistanceX", 0, 3, -1, 1, 12.5))
sketch12.addConstraint(Sketcher.Constraint("DistanceX", 1, 1, 1, 2, 0.833402))
pad12 = body2.newObject("PartDesign::Pad", "Pad011")
pad12.Profile = sketch12
pad12.Type = "UpToFirst"
pad12.Reversed = True

# Sketch on XY plane
sketch13 = body2.newObject("Sketcher::SketchObject", "Sketch012")
sketch13.AttachmentSupport = (doc.getObject("XY_Plane001"), [""])
sketch13.MapMode = "FlatFace"
sketch13.AttachmentOffset = App.Placement(Vector(0, 0, 15), App.Rotation())
sketch13.addGeometry(Part.LineSegment(Vector(-12.5, -0.875, 0), Vector(-12.5, -1.458712, 0)), False)
sketch13.addGeometry(Part.LineSegment(Vector(-12.5, -1.458712, 0), Vector(-11.666598, -1.458712, 0)), False)
sketch13.addGeometry(Part.ArcOfCircle(Part.Circle(Vector(-12.499997, -0.000002, 0), Vector(0, 0, 1), 1.679997), math.radians(-60.25956), math.radians(0.00006)), False)
sketch13.addGeometry(Part.ArcOfCircle(Part.Circle(Vector(-12.499997, 0.000002, 0), Vector(0, 0, 1), 1.679997), math.radians(-0.00006), math.radians(60.25956)), False)
sketch13.addGeometry(Part.LineSegment(Vector(-11.666598, 1.458712, 0), Vector(-12.5, 1.458712, 0)), False)
sketch13.addGeometry(Part.LineSegment(Vector(-12.5, 1.458712, 0), Vector(-12.5, 0.875, 0)), False)
sketch13.addGeometry(Part.ArcOfCircle(Part.Circle(Vector(-12.500001, -0.000001, 0), Vector(0, 0, 1), 0.875001), math.radians(0.000097), math.radians(89.999903)), False)
sketch13.addGeometry(Part.ArcOfCircle(Part.Circle(Vector(-12.500001, 0.000001, 0), Vector(0, 0, 1), 0.875001), math.radians(-89.999903), math.radians(-0.000097)), False)
sketch13.addConstraint(Sketcher.Constraint("Coincident", 0, 2, 1, 1))
sketch13.addConstraint(Sketcher.Constraint("Coincident", 1, 2, 2, 1))
sketch13.addConstraint(Sketcher.Constraint("Coincident", 2, 2, 3, 1))
sketch13.addConstraint(Sketcher.Constraint("Coincident", 3, 2, 4, 1))
sketch13.addConstraint(Sketcher.Constraint("Coincident", 4, 2, 5, 1))
sketch13.addConstraint(Sketcher.Constraint("Coincident", 5, 2, 6, 2))
sketch13.addConstraint(Sketcher.Constraint("Coincident", 6, 1, 7, 2))
sketch13.addConstraint(Sketcher.Constraint("Coincident", 7, 1, 0, 1))
sketch13.addConstraint(Sketcher.Constraint("Vertical", 0))
sketch13.addConstraint(Sketcher.Constraint("Horizontal", 1))
sketch13.addConstraint(Sketcher.Constraint("Horizontal", 4))
sketch13.addConstraint(Sketcher.Constraint("Vertical", 5))
sketch13.addConstraint(Sketcher.Constraint("Coincident", 3, 3, 2, 3))
sketch13.addConstraint(Sketcher.Constraint("Coincident", 6, 3, 2, 3))
sketch13.addConstraint(Sketcher.Constraint("Coincident", 7, 3, 2, 3))
sketch13.addConstraint(Sketcher.Constraint("Symmetric", 1, 2, 3, 2, -1))
sketch13.addConstraint(Sketcher.Constraint("PointOnObject", 2, 2, -1))
sketch13.addConstraint(Sketcher.Constraint("PointOnObject", 6, 1, -1))
sketch13.addConstraint(Sketcher.Constraint("Vertical", 7, 3, 0, 2))
sketch13.addConstraint(Sketcher.Constraint("Vertical", 0, 2, 4, 2))
sketch13.addConstraint(Sketcher.Constraint("Radius", 6, 0.875001))
sketch13.addConstraint(Sketcher.Constraint("DistanceX", 6, 3, -1, 1, 12.500001))
sketch13.addConstraint(Sketcher.Constraint("DistanceX", 2, 2, -1, 1, 10.82))
sketch13.addConstraint(Sketcher.Constraint("DistanceX", 1, 1, 1, 2, 0.833402))
pad13 = body2.newObject("PartDesign::Pad", "Pad012")
pad13.Profile = sketch13
pad13.Type = "UpToFirst"
pad13.Reversed = True

# Sketch on XY plane
sketch14 = body2.newObject("Sketcher::SketchObject", "Sketch013")
sketch14.AttachmentSupport = (doc.getObject("XY_Plane001"), [""])
sketch14.MapMode = "FlatFace"
sketch14.AttachmentOffset = App.Placement(Vector(0, 0, 15), App.Rotation())
sketch14.addGeometry(Part.ArcOfCircle(Part.Circle(Vector(-12.5, 0.000001, 0), Vector(0, 0, 1), 1.679999), math.radians(60.259477), math.radians(119.740523)), False)
sketch14.addGeometry(Part.LineSegment(Vector(-13.333402, 1.458712, 0), Vector(-11.666598, 1.458712, 0)), False)
sketch14.addConstraint(Sketcher.Constraint("Coincident", 0, 1, 1, 2))
sketch14.addConstraint(Sketcher.Constraint("Coincident", 1, 1, 0, 2))
sketch14.addConstraint(Sketcher.Constraint("Horizontal", 1))
sketch14.addConstraint(Sketcher.Constraint("PointOnObject", 0, 3, -1))
sketch14.addConstraint(Sketcher.Constraint("Radius", 0, 1.679999))
sketch14.addConstraint(Sketcher.Constraint("DistanceX", 0, 3, -1, 1, 12.5))
sketch14.addConstraint(Sketcher.Constraint("DistanceX", 0, 1, -1, 1, 11.666598))
pad14 = body2.newObject("PartDesign::Pad", "Pad013")
pad14.Profile = sketch14
pad14.Type = "UpToFirst"
pad14.Reversed = True

# Sketch on XY plane
sketch15 = body2.newObject("Sketcher::SketchObject", "Sketch014")
sketch15.AttachmentSupport = (doc.getObject("XY_Plane001"), [""])
sketch15.MapMode = "FlatFace"
sketch15.AttachmentOffset = App.Placement(Vector(0, 0, 15), App.Rotation())
sketch15.addGeometry(Part.ArcOfCircle(Part.Circle(Vector(-12.5, -0.000001, 0), Vector(0, 0, 1), 1.679999), math.radians(-119.740523), math.radians(-60.259477)), False)
sketch15.addGeometry(Part.LineSegment(Vector(-11.666598, -1.458712, 0), Vector(-13.333402, -1.458712, 0)), False)
sketch15.addConstraint(Sketcher.Constraint("Coincident", 0, 1, 1, 2))
sketch15.addConstraint(Sketcher.Constraint("Coincident", 1, 1, 0, 2))
sketch15.addConstraint(Sketcher.Constraint("Horizontal", 1))
sketch15.addConstraint(Sketcher.Constraint("PointOnObject", 0, 3, -1))
sketch15.addConstraint(Sketcher.Constraint("Radius", 0, 1.679999))
sketch15.addConstraint(Sketcher.Constraint("DistanceX", 0, 3, -1, 1, 12.5))
sketch15.addConstraint(Sketcher.Constraint("DistanceX", 0, 1, -1, 1, 13.333402))
pad15 = body2.newObject("PartDesign::Pad", "Pad014")
pad15.Profile = sketch15
pad15.Type = "UpToFirst"
pad15.Reversed = True

# Sketch on YZ plane
sketch16 = body2.newObject("Sketcher::SketchObject", "Sketch015")
sketch16.AttachmentSupport = (doc.getObject("YZ_Plane001"), [""])
sketch16.MapMode = "FlatFace"
sketch16.AttachmentOffset = App.Placement(Vector(0, 0, -12.5), App.Rotation())
add_polygon(sketch16, [(0.875, 15), (0.875, 19.47), (1.492143, 19.47), (2.15, 16.4), (1.85, 16.4), (2.15, 15)])  # lines 0-5
sketch16.addConstraint(Sketcher.Constraint("Vertical", 0))
sketch16.addConstraint(Sketcher.Constraint("Horizontal", 1))
sketch16.addConstraint(Sketcher.Constraint("Horizontal", 3))
sketch16.addConstraint(Sketcher.Constraint("Horizontal", 5))
sketch16.addConstraint(Sketcher.Constraint("Parallel", 2, 4))
sketch16.addConstraint(Sketcher.Constraint("Vertical", 2, 2, 4, 2))
sketch16.addConstraint(Sketcher.Constraint("DistanceX", 3, 2, 3, 1, 0.3))
sketch16.addConstraint(Sketcher.Constraint("DistanceY", -1, 1, 4, 2, 15.0))
sketch16.addConstraint(Sketcher.Constraint("DistanceY", 0, 1, 0, 2, 4.47))
sketch16.addConstraint(Sketcher.Constraint("DistanceY", -1, 1, 2, 2, 16.4))
sketch16.addConstraint(Sketcher.Constraint("DistanceX", 5, 2, 5, 1, 1.275))
sketch16.addConstraint(Sketcher.Constraint("DistanceX", -1, 1, 2, 2, 2.15))
revolution = body2.newObject("PartDesign::Revolution", "Revolution")
revolution.Profile = sketch16
revolution.ReferenceAxis = (sketch16, ["V_Axis"])
revolution.Angle = 360

doc.recompute()
